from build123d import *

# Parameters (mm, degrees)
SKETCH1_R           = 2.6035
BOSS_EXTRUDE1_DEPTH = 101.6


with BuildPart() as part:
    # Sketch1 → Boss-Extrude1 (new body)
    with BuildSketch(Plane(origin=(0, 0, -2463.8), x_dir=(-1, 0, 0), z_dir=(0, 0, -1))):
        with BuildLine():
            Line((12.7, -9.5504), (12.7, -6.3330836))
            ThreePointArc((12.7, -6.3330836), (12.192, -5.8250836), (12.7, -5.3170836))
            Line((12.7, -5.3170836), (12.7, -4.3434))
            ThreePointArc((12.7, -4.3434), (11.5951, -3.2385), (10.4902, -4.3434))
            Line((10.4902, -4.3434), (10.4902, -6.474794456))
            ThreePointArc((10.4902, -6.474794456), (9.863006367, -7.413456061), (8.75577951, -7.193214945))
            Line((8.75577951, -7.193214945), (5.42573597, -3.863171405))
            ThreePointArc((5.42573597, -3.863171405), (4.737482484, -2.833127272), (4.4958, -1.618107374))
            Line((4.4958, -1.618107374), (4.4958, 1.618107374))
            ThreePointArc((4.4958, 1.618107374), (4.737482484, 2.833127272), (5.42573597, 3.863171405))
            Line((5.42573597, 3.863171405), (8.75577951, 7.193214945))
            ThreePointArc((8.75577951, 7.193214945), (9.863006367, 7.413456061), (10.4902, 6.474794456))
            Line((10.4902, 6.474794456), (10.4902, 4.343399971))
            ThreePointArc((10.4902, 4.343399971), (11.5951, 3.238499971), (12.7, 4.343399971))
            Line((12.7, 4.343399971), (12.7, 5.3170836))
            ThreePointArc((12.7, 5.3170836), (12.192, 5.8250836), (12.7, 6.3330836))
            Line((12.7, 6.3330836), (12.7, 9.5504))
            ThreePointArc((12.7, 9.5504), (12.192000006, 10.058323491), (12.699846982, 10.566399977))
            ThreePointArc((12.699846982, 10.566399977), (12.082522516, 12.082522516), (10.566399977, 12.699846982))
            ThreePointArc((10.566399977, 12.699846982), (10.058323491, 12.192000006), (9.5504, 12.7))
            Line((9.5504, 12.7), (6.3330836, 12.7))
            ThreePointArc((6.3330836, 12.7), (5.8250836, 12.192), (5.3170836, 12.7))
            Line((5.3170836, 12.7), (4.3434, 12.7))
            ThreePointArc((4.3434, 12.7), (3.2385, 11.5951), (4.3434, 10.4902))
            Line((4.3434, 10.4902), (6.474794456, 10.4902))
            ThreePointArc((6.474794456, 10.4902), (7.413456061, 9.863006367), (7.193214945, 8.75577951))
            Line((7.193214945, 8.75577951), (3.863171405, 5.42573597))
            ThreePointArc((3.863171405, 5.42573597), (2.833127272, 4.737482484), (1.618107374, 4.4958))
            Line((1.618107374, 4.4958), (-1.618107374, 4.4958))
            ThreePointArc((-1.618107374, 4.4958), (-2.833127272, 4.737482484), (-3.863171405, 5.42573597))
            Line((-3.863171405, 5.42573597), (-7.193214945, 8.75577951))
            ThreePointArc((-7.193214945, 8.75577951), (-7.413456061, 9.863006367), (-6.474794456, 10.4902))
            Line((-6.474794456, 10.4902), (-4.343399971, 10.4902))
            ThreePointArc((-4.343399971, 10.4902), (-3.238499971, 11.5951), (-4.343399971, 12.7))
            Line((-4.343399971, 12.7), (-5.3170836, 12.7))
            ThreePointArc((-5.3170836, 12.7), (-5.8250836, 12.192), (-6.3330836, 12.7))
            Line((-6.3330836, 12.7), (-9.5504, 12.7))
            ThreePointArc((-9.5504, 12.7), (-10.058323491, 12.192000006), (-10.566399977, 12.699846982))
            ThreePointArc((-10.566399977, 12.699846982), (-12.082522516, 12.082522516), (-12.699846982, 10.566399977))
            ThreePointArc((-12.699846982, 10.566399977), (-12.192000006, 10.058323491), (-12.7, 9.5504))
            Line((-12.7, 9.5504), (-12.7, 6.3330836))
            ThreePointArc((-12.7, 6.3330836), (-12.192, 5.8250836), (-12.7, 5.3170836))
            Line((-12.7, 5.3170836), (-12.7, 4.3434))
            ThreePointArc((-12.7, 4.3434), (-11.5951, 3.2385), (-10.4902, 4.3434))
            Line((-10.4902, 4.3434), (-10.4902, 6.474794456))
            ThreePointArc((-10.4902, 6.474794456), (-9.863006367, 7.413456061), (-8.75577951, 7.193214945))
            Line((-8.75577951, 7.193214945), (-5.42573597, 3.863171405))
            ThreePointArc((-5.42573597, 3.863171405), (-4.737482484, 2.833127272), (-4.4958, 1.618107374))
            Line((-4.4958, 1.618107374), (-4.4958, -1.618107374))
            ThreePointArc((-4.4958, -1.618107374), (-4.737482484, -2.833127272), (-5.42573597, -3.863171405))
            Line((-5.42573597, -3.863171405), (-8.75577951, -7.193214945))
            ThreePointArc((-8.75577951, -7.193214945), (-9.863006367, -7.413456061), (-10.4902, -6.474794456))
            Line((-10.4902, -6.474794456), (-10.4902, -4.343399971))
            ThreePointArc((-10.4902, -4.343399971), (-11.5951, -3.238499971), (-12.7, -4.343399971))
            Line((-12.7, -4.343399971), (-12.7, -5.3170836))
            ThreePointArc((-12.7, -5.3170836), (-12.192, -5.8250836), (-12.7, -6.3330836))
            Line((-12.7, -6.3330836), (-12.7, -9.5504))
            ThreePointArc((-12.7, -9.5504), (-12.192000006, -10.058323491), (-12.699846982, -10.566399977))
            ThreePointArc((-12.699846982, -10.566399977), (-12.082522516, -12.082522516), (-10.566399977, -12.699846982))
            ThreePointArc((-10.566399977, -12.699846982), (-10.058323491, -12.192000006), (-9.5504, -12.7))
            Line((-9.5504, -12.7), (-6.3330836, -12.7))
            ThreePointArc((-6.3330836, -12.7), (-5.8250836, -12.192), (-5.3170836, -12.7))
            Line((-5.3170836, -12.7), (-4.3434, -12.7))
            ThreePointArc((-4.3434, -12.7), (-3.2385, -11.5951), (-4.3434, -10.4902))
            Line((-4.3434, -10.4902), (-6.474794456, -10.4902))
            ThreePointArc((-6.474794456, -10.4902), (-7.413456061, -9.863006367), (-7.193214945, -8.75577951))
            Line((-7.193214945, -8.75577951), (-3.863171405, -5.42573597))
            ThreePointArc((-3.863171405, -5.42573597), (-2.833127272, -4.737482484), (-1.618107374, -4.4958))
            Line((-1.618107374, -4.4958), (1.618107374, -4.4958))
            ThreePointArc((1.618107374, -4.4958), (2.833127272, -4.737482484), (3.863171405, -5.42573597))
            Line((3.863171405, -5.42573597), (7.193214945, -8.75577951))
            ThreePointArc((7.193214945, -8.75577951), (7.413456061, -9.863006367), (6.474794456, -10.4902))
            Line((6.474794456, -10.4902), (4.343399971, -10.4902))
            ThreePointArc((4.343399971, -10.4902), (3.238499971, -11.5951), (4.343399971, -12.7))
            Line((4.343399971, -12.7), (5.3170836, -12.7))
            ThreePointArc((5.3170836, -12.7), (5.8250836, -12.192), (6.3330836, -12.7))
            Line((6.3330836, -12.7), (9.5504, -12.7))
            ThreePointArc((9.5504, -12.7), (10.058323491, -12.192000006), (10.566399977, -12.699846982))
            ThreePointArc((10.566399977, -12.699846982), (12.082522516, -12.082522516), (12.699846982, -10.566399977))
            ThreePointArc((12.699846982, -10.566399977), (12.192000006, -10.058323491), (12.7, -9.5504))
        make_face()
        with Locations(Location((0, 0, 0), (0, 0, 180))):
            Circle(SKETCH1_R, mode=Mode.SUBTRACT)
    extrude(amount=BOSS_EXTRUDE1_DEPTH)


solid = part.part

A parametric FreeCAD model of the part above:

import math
import FreeCAD as App
import Part
import Sketcher
Q = App.Units.Quantity

doc = App.newDocument("Part")
body = doc.addObject("PartDesign::Body", "Body")

# Sketch on XY plane
sketch1 = body.newObject("Sketcher::SketchObject", "Sketch")
sketch1.AttachmentSupport = (doc.getObject("XY_Plane"), [""])
sketch1.MapMode = "FlatFace"
sketch1.AttachmentOffset = App.Placement(App.Vector(0, 0, -97 * 25.4), App.Rotation())
sketch1.addGeometry(Part.LineSegment(App.Vector(-12.7, -9.6, 0), App.Vector(-12.7, -6.3, 0)), False)
sketch1.addGeometry(Part.ArcOfCircle(Part.Circle(App.Vector(-12.7, -5.8, 0), App.Vector(0, 0, 1), 0.5), math.radians(-90), math.radians(90)), False)
sketch1.addGeometry(Part.LineSegment(App.Vector(-12.7, -5.3, 0), App.Vector(-12.7, -4.3, 0)), False)
sketch1.addGeometry(Part.ArcOfCircle(Part.Circle(App.Vector(-11.6, -4.3, 0), App.Vector(0, 0, 1), 1.1), math.radians(0), math.radians(180)), False)
sketch1.addGeometry(Part.LineSegment(App.Vector(-10.5, -4.3, 0), App.Vector(-10.5, -6.5, 0)), False)
sketch1.addGeometry(Part.ArcOfCircle(Part.Circle(App.Vector(-9.5, -6.5, 0), App.Vector(0, 0, 1), 1), math.radians(180), math.radians(315)), False)
sketch1.addGeometry(Part.LineSegment(App.Vector(-8.8, -7.2, 0), App.Vector(-5.4, -3.9, 0)), False)
sketch1.addGeometry(Part.ArcOfCircle(Part.Circle(App.Vector(-7.7, -1.6, 0), App.Vector(0, 0, 1), 3.2), math.radians(-45), math.radians(0)), False)
sketch1.addGeometry(Part.LineSegment(App.Vector(-4.5, -1.6, 0), App.Vector(-4.5, 1.6, 0)), False)
sketch1.addGeometry(Part.ArcOfCircle(Part.Circle(App.Vector(-7.7, 1.6, 0), App.Vector(0, 0, 1), 3.2), math.radians(0), math.radians(45)), False)
sketch1.addGeometry(Part.LineSegment(App.Vector(-5.4, 3.9, 0), App.Vector(-8.8, 7.2, 0)), False)
sketch1.addGeometry(Part.ArcOfCircle(Part.Circle(App.Vector(-9.5, 6.5, 0), App.Vector(0, 0, 1), 1), math.radians(45), math.radians(180)), False)
sketch1.addGeometry(Part.LineSegment(App.Vector(-10.5, 6.5, 0), App.Vector(-10.5, 4.3, 0)), False)
sketch1.addGeometry(Part.ArcOfCircle(Part.Circle(App.Vector(-11.6, 4.3, 0), App.Vector(0, 0, 1), 1.1), math.radians(180), math.radians(360)), False)
sketch1.addGeometry(Part.LineSegment(App.Vector(-12.7, 4.3, 0), App.Vector(-12.7, 5.3, 0)), False)
sketch1.addGeometry(Part.ArcOfCircle(Part.Circle(App.Vector(-12.7, 5.8, 0), App.Vector(0, 0, 1), 0.5), math.radians(-90), math.radians(90)), False)
sketch1.addGeometry(Part.LineSegment(App.Vector(-12.7, 6.3, 0), App.Vector(-12.7, 9.6, 0)), False)
sketch1.addGeometry(Part.ArcOfCircle(Part.Circle(App.Vector(-12.7, 10.1, 0), App.Vector(0, 0, 1), 0.5), math.radians(-90), math.radians(90)), False)
sketch1.addGeometry(Part.ArcOfCircle(Part.Circle(App.Vector(-10.6, 10.6, 0), App.Vector(0, 0, 1), 2.1), math.radians(89), math.radians(181)), False)
sketch1.addGeometry(Part.ArcOfCircle(Part.Circle(App.Vector(-10.1, 12.7, 0), App.Vector(0, 0, 1), 0.5), math.radians(-180), math.radians(0)), False)
sketch1.addGeometry(Part.LineSegment(App.Vector(-9.6, 12.7, 0), App.Vector(-6.3, 12.7, 0)), False)
sketch1.addGeometry(Part.ArcOfCircle(Part.Circle(App.Vector(-5.8, 12.7, 0), App.Vector(0, 0, 1), 0.5), math.radians(180), math.radians(360)), False)
sketch1.addGeometry(Part.LineSegment(App.Vector(-5.3, 12.7, 0), App.Vector(-4.3, 12.7, 0)), False)
sketch1.addGeometry(Part.ArcOfCircle(Part.Circle(App.Vector(-4.3, 11.6, 0), App.Vector(0, 0, 1), 1.1), math.radians(-90), math.radians(90)), False)
sketch1.addGeometry(Part.LineSegment(App.Vector(-4.3, 10.5, 0), App.Vector(-6.5, 10.5, 0)), False)
sketch1.addGeometry(Part.ArcOfCircle(Part.Circle(App.Vector(-6.5, 9.5, 0), App.Vector(0, 0, 1), 1), math.radians(90), math.radians(225)), False)
sketch1.addGeometry(Part.LineSegment(App.Vector(-7.2, 8.8, 0), App.Vector(-3.9, 5.4, 0)), False)
sketch1.addGeometry(Part.ArcOfCircle(Part.Circle(App.Vector(-1.6, 7.7, 0), App.Vector(0, 0, 1), 3.2), math.radians(-135), math.radians(-90)), False)
sketch1.addGeometry(Part.LineSegment(App.Vector(-1.6, 4.5, 0), App.Vector(1.6, 4.5, 0)), False)
sketch1.addGeometry(Part.ArcOfCircle(Part.Circle(App.Vector(1.6, 7.7, 0), App.Vector(0, 0, 1), 3.2), math.radians(-90), math.radians(-45)), False)
sketch1.addGeometry(Part.LineSegment(App.Vector(3.9, 5.4, 0), App.Vector(7.2, 8.8, 0)), False)
sketch1.addGeometry(Part.ArcOfCircle(Part.Circle(App.Vector(6.5, 9.5, 0), App.Vector(0, 0, 1), 1), math.radians(-45), math.radians(90)), False)
sketch1.addGeometry(Part.LineSegment(App.Vector(6.5, 10.5, 0), App.Vector(4.3, 10.5, 0)), False)
sketch1.addGeometry(Part.ArcOfCircle(Part.Circle(App.Vector(4.3, 11.6, 0), App.Vector(0, 0, 1), 1.1), math.radians(90), math.radians(270)), False)
sketch1.addGeometry(Part.LineSegment(App.Vector(4.3, 12.7, 0), App.Vector(5.3, 12.7, 0)), False)
sketch1.addGeometry(Part.ArcOfCircle(Part.Circle(App.Vector(5.8, 12.7, 0), App.Vector(0, 0, 1), 0.5), math.radians(180), math.radians(360)), False)
sketch1.addGeometry(Part.LineSegment(App.Vector(6.3, 12.7, 0), App.Vector(9.6, 12.7, 0)), False)
sketch1.addGeometry(Part.ArcOfCircle(Part.Circle(App.Vector(10.1, 12.7, 0), App.Vector(0, 0, 1), 0.5), math.radians(180), math.radians(360)), False)
sketch1.addGeometry(Part.ArcOfCircle(Part.Circle(App.Vector(10.6, 10.6, 0), App.Vector(0, 0, 1), 2.1), math.radians(-1), math.radians(91)), False)
sketch1.addGeometry(Part.ArcOfCircle(Part.Circle(App.Vector(12.7, 10.1, 0), App.Vector(0, 0, 1), 0.5), math.radians(90), math.radians(270)), False)
sketch1.addGeometry(Part.LineSegment(App.Vector(12.7, 9.6, 0), App.Vector(12.7, 6.3, 0)), False)
sketch1.addGeometry(Part.ArcOfCircle(Part.Circle(App.Vector(12.7, 5.8, 0), App.Vector(0, 0, 1), 0.5), math.radians(90), math.radians(270)), False)
sketch1.addGeometry(Part.LineSegment(App.Vector(12.7, 5.3, 0), App.Vector(12.7, 4.3, 0)), False)
sketch1.addGeometry(Part.ArcOfCircle(Part.Circle(App.Vector(11.6, 4.3, 0), App.Vector(0, 0, 1), 1.1), math.radians(180), math.radians(360)), False)
sketch1.addGeometry(Part.LineSegment(App.Vector(10.5, 4.3, 0), App.Vector(10.5, 6.5, 0)), False)
sketch1.addGeometry(Part.ArcOfCircle(Part.Circle(App.Vector(9.5, 6.5, 0), App.Vector(0, 0, 1), 1), math.radians(0), math.radians(135)), False)
sketch1.addGeometry(Part.LineSegment(App.Vector(8.8, 7.2, 0), App.Vector(5.4, 3.9, 0)), False)
sketch1.addGeometry(Part.ArcOfCircle(Part.Circle(App.Vector(7.7, 1.6, 0), App.Vector(0, 0, 1), 3.2), math.radians(135), math.radians(180)), False)
sketch1.addGeometry(Part.LineSegment(App.Vector(4.5, 1.6, 0), App.Vector(4.5, -1.6, 0)), False)
sketch1.addGeometry(Part.ArcOfCircle(Part.Circle(App.Vector(7.7, -1.6, 0), App.Vector(0, 0, 1), 3.2), math.radians(180), math.radians(225)), False)
sketch1.addGeometry(Part.LineSegment(App.Vector(5.4, -3.9, 0), App.Vector(8.8, -7.2, 0)), False)
sketch1.addGeometry(Part.ArcOfCircle(Part.Circle(App.Vector(9.5, -6.5, 0), App.Vector(0, 0, 1), 1), math.radians(-135), math.radians(0)), False)
sketch1.addGeometry(Part.LineSegment(App.Vector(10.5, -6.5, 0), App.Vector(10.5, -4.3, 0)), False)
sketch1.addGeometry(Part.ArcOfCircle(Part.Circle(App.Vector(11.6, -4.3, 0), App.Vector(0, 0, 1), 1.1), math.radians(0), math.radians(180)), False)
sketch1.addGeometry(Part.LineSegment(App.Vector(12.7, -4.3, 0), App.Vector(12.7, -5.3, 0)), False)
sketch1.addGeometry(Part.ArcOfCircle(Part.Circle(App.Vector(12.7, -5.8, 0), App.Vector(0, 0, 1), 0.5), math.radians(90), math.radians(270)), False)
sketch1.addGeometry(Part.LineSegment(App.Vector(12.7, -6.3, 0), App.Vector(12.7, -9.6, 0)), False)
sketch1.addGeometry(Part.ArcOfCircle(Part.Circle(App.Vector(12.7, -10.1, 0), App.Vector(0, 0, 1), 0.5), math.radians(90), math.radians(270)), False)
sketch1.addGeometry(Part.ArcOfCircle(Part.Circle(App.Vector(10.6, -10.6, 0), App.Vector(0, 0, 1), 2.1), math.radians(-91), math.radians(1)), False)
sketch1.addGeometry(Part.ArcOfCircle(Part.Circle(App.Vector(10.1, -12.7, 0), App.Vector(0, 0, 1), 0.5), math.radians(0), math.radians(180)), False)
sketch1.addGeometry(Part.LineSegment(App.Vector(9.6, -12.7, 0), App.Vector(6.3, -12.7, 0)), False)
sketch1.addGeometry(Part.ArcOfCircle(Part.Circle(App.Vector(5.8, -12.7, 0), App.Vector(0, 0, 1), 0.5), math.radians(0), math.radians(180)), False)
sketch1.addGeometry(Part.LineSegment(App.Vector(5.3, -12.7, 0), App.Vector(4.3, -12.7, 0)), False)
sketch1.addGeometry(Part.ArcOfCircle(Part.Circle(App.Vector(4.3, -11.6, 0), App.Vector(0, 0, 1), 1.1), math.radians(90), math.radians(270)), False)
sketch1.addGeometry(Part.LineSegment(App.Vector(4.3, -10.5, 0), App.Vector(6.5, -10.5, 0)), False)
sketch1.addGeometry(Part.ArcOfCircle(Part.Circle(App.Vector(6.5, -9.5, 0), App.Vector(0, 0, 1), 1), math.radians(-90), math.radians(45)), False)
sketch1.addGeometry(Part.LineSegment(App.Vector(7.2, -8.8, 0), App.Vector(3.9, -5.4, 0)), False)
sketch1.addGeometry(Part.ArcOfCircle(Part.Circle(App.Vector(1.6, -7.7, 0), App.Vector(0, 0, 1), 3.2), math.radians(45), math.radians(90)), False)
sketch1.addGeometry(Part.LineSegment(App.Vector(1.6, -4.5, 0), App.Vector(-1.6, -4.5, 0)), False)
sketch1.addGeometry(Part.ArcOfCircle(Part.Circle(App.Vector(-1.6, -7.7, 0), App.Vector(0, 0, 1), 3.2), math.radians(90), math.radians(135)), False)
sketch1.addGeometry(Part.LineSegment(App.Vector(-3.9, -5.4, 0), App.Vector(-7.2, -8.8, 0)), False)
sketch1.addGeometry(Part.ArcOfCircle(Part.Circle(App.Vector(-6.5, -9.5, 0), App.Vector(0, 0, 1), 1), math.radians(135), math.radians(270)), False)
sketch1.addGeometry(Part.LineSegment(App.Vector(-6.5, -10.5, 0), App.Vector(-4.3, -10.5, 0)), False)
sketch1.addGeometry(Part.ArcOfCircle(Part.Circle(App.Vector(-4.3, -11.6, 0), App.Vector(0, 0, 1), 1.1), math.radians(-90), math.radians(90)), False)
sketch1.addGeometry(Part.LineSegment(App.Vector(-4.3, -12.7, 0), App.Vector(-5.3, -12.7, 0)), False)
sketch1.addGeometry(Part.ArcOfCircle(Part.Circle(App.Vector(-5.8, -12.7, 0), App.Vector(0, 0, 1), 0.5), math.radians(0), math.radians(180)), False)
sketch1.addGeometry(Part.LineSegment(App.Vector(-6.3, -12.7, 0), App.Vector(-9.6, -12.7, 0)), False)
sketch1.addGeometry(Part.ArcOfCircle(Part.Circle(App.Vector(-10.1, -12.7, 0), App.Vector(0, 0, 1), 0.5), math.radians(0), math.radians(180)), False)
sketch1.addGeometry(Part.ArcOfCircle(Part.Circle(App.Vector(-10.6, -10.6, 0), App.Vector(0, 0, 1), 2.1), math.radians(179), math.radians(271)), False)
sketch1.addGeometry(Part.ArcOfCircle(Part.Circle(App.Vector(-12.7, -10.1, 0), App.Vector(0, 0, 1), 0.5), math.radians(-90), math.radians(90)), False)
sketch1.addGeometry(Part.Circle(App.Vector(0, 0, 0), App.Vector(0, 0, 1), 2.6), False)
sketch1.addConstraint(Sketcher.Constraint("Coincident", 0, 2, 1, 1))
sketch1.addConstraint(Sketcher.Constraint("Coincident", 1, 2, 2, 1))
sketch1.addConstraint(Sketcher.Constraint("Tangent", 2, 2, 3, 2))
sketch1.addConstraint(Sketcher.Constraint("Tangent", 3, 1, 4, 1))
sketch1.addConstraint(Sketcher.Constraint("Tangent", 4, 2, 5, 1))
sketch1.addConstraint(Sketcher.Constraint("Tangent", 5, 2, 6, 1))
sketch1.addConstraint(Sketcher.Constraint("Tangent", 6, 2, 7, 1))
sketch1.addConstraint(Sketcher.Constraint("Tangent", 7, 2, 8, 1))
sketch1.addConstraint(Sketcher.Constraint("Tangent", 8, 2, 9, 1))
sketch1.addConstraint(Sketcher.Constraint("Tangent", 9, 2, 10, 1))
sketch1.addConstraint(Sketcher.Constraint("Tangent", 10, 2, 11, 1))
sketch1.addConstraint(Sketcher.Constraint("Tangent", 11, 2, 12, 1))
sketch1.addConstraint(Sketcher.Constraint("Tangent", 12, 2, 13, 2))
sketch1.addConstraint(Sketcher.Constraint("Tangent", 13, 1, 14, 1))
sketch1.addConstraint(Sketcher.Constraint("Coincident", 14, 2, 15, 1))
sketch1.addConstraint(Sketcher.Constraint("Coincident", 15, 2, 16, 1))
sketch1.addConstraint(Sketcher.Constraint("Coincident", 16, 2, 17, 1))
sketch1.addConstraint(Sketcher.Constraint("Coincident", 17, 2, 18, 2))
sketch1.addConstraint(Sketcher.Constraint("Coincident", 18, 1, 19, 1))
sketch1.addConstraint(Sketcher.Constraint("Coincident", 19, 2, 20, 1))
sketch1.addConstraint(Sketcher.Constraint("Coincident", 20, 2, 21, 1))
sketch1.addConstraint(Sketcher.Constraint("Coincident", 21, 2, 22, 1))
sketch1.addConstraint(Sketcher.Constraint("Tangent", 22, 2, 23, 2))
sketch1.addConstraint(Sketcher.Constraint("Tangent", 23, 1, 24, 1))
sketch1.addConstraint(Sketcher.Constraint("Tangent", 24, 2, 25, 1))
sketch1.addConstraint(Sketcher.Constraint("Tangent", 25, 2, 26, 1))
sketch1.addConstraint(Sketcher.Constraint("Tangent", 26, 2, 27, 1))
sketch1.addConstraint(Sketcher.Constraint("Tangent", 27, 2, 28, 1))
sketch1.addConstraint(Sketcher.Constraint("Tangent", 28, 2, 29, 1))
sketch1.addConstraint(Sketcher.Constraint("Tangent", 29, 2, 30, 1))
sketch1.addConstraint(Sketcher.Constraint("Tangent", 30, 2, 31, 1))
sketch1.addConstraint(Sketcher.Constraint("Tangent", 31, 2, 32, 1))
sketch1.addConstraint(Sketcher.Constraint("Tangent", 32, 2, 33, 2))
sketch1.addConstraint(Sketcher.Constraint("Tangent", 33, 1, 34, 1))
sketch1.addConstraint(Sketcher.Constraint("Coincident", 34, 2, 35, 1))
sketch1.addConstraint(Sketcher.Constraint("Coincident", 35, 2, 36, 1))
sketch1.addConstraint(Sketcher.Constraint("Coincident", 36, 2, 37, 1))
sketch1.addConstraint(Sketcher.Constraint("Coincident", 37, 2, 38, 2))
sketch1.addConstraint(Sketcher.Constraint("Coincident", 38, 1, 39, 1))
sketch1.addConstraint(Sketcher.Constraint("Coincident", 39, 2, 40, 1))
sketch1.addConstraint(Sketcher.Constraint("Coincident", 40, 2, 41, 1))
sketch1.addConstraint(Sketcher.Constraint("Coincident", 41, 2, 42, 1))
sketch1.addConstraint(Sketcher.Constraint("Tangent", 42, 2, 43, 2))
sketch1.addConstraint(Sketcher.Constraint("Tangent", 43, 1, 44, 1))
sketch1.addConstraint(Sketcher.Constraint("Tangent", 44, 2, 45, 1))
sketch1.addConstraint(Sketcher.Constraint("Tangent", 45, 2, 46, 1))
sketch1.addConstraint(Sketcher.Constraint("Tangent", 46, 2, 47, 1))
sketch1.addConstraint(Sketcher.Constraint("Tangent", 47, 2, 48, 1))
sketch1.addConstraint(Sketcher.Constraint("Tangent", 48, 2, 49, 1))
sketch1.addConstraint(Sketcher.Constraint("Tangent", 49, 2, 50, 1))
sketch1.addConstraint(Sketcher.Constraint("Tangent", 50, 2, 51, 1))
sketch1.addConstraint(Sketcher.Constraint("Tangent", 51, 2, 52, 1))
sketch1.addConstraint(Sketcher.Constraint("Tangent", 52, 2, 53, 2))
sketch1.addConstraint(Sketcher.Constraint("Tangent", 53, 1, 54, 1))
sketch1.addConstraint(Sketcher.Constraint("Coincident", 54, 2, 55, 1))
sketch1.addConstraint(Sketcher.Constraint("Coincident", 55, 2, 56, 1))
sketch1.addConstraint(Sketcher.Constraint("Coincident", 56, 2, 57, 1))
sketch1.addConstraint(Sketcher.Constraint("Coincident", 57, 2, 58, 2))
sketch1.addConstraint(Sketcher.Constraint("Coincident", 58, 1, 59, 1))
sketch1.addConstraint(Sketcher.Constraint("Coincident", 59, 2, 60, 1))
sketch1.addConstraint(Sketcher.Constraint("Coincident", 60, 2, 61, 1))
sketch1.addConstraint(Sketcher.Constraint("Coincident", 61, 2, 62, 1))
sketch1.addConstraint(Sketcher.Constraint("Tangent", 62, 2, 63, 2))
sketch1.addConstraint(Sketcher.Constraint("Tangent", 63, 1, 64, 1))
sketch1.addConstraint(Sketcher.Constraint("Tangent", 64, 2, 65, 1))
sketch1.addConstraint(Sketcher.Constraint("Tangent", 65, 2, 66, 1))
sketch1.addConstraint(Sketcher.Constraint("Tangent", 66, 2, 67, 1))
sketch1.addConstraint(Sketcher.Constraint("Tangent", 67, 2, 68, 1))
sketch1.addConstraint(Sketcher.Constraint("Tangent", 68, 2, 69, 1))
sketch1.addConstraint(Sketcher.Constraint("Tangent", 69, 2, 70, 1))
sketch1.addConstraint(Sketcher.Constraint("Tangent", 70, 2, 71, 1))
sketch1.addConstraint(Sketcher.Constraint("Tangent", 71, 2, 72, 1))
sketch1.addConstraint(Sketcher.Constraint("Tangent", 72, 2, 73, 2))
sketch1.addConstraint(Sketcher.Constraint("Tangent", 73, 1, 74, 1))
sketch1.addConstraint(Sketcher.Constraint("Coincident", 74, 2, 75, 1))
sketch1.addConstraint(Sketcher.Constraint("Coincident", 75, 2, 76, 1))
sketch1.addConstraint(Sketcher.Constraint("Coincident", 76, 2, 77, 1))
sketch1.addConstraint(Sketcher.Constraint("Coincident", 77, 2, 78, 2))
sketch1.addConstraint(Sketcher.Constraint("Coincident", 78, 1, 79, 1))
sketch1.addConstraint(Sketcher.Constraint("Coincident", 79, 2, 0, 1))
sketch1.addConstraint(Sketcher.Constraint("Vertical", 0))
sketch1.addConstraint(Sketcher.Constraint("Vertical", 2))
sketch1.addConstraint(Sketcher.Constraint("Vertical", 4))
sketch1.addConstraint(Sketcher.Constraint("Vertical", 8))
sketch1.addConstraint(Sketcher.Constraint("Vertical", 12))
sketch1.addConstraint(Sketcher.Constraint("Vertical", 14))
sketch1.addConstraint(Sketcher.Constraint("Vertical", 16))
sketch1.addConstraint(Sketcher.Constraint("Horizontal", 20))
sketch1.addConstraint(Sketcher.Constraint("Horizontal", 22))
sketch1.addConstraint(Sketcher.Constraint("Horizontal", 24))
sketch1.addConstraint(Sketcher.Constraint("Horizontal", 28))
sketch1.addConstraint(Sketcher.Constraint("Horizontal", 32))
sketch1.addConstraint(Sketcher.Constraint("Horizontal", 34))
sketch1.addConstraint(Sketcher.Constraint("Horizontal", 36))
sketch1.addConstraint(Sketcher.Constraint("Vertical", 40))
sketch1.addConstraint(Sketcher.Constraint("Vertical", 42))
sketch1.addConstraint(Sketcher.Constraint("Vertical", 44))
sketch1.addConstraint(Sketcher.Constraint("Vertical", 48))
sketch1.addConstraint(Sketcher.Constraint("Vertical", 52))
sketch1.addConstraint(Sketcher.Constraint("Vertical", 54))
sketch1.addConstraint(Sketcher.Constraint("Vertical", 56))
sketch1.addConstraint(Sketcher.Constraint("Horizontal", 60))
sketch1.addConstraint(Sketcher.Constraint("Horizontal", 62))
sketch1.addConstraint(Sketcher.Constraint("Horizontal", 64))
sketch1.addConstraint(Sketcher.Constraint("Horizontal", 68))
sketch1.addConstraint(Sketcher.Constraint("Horizontal", 72))
sketch1.addConstraint(Sketcher.Constraint("Horizontal", 74))
sketch1.addConstraint(Sketcher.Constraint("Horizontal", 76))
sketch1.addConstraint(Sketcher.Constraint("Coincident", 80, 3, -1, 1))
sketch1.addConstraint(Sketcher.Constraint("Equal", 7, 9))
sketch1.addConstraint(Sketcher.Constraint("Equal", 5, 11))
sketch1.addConstraint(Sketcher.Constraint("Equal", 3, 13))
sketch1.addConstraint(Sketcher.Constraint("Equal", 1, 15))
sketch1.addConstraint(Sketcher.Constraint("Equal", 15, 17))
sketch1.addConstraint(Sketcher.Constraint("Equal", 17, 19))
sketch1.addConstraint(Sketcher.Constraint("Equal", 19, 21))
sketch1.addConstraint(Sketcher.Constraint("Equal", 13, 23))
sketch1.addConstraint(Sketcher.Constraint("Equal", 11, 25))
sketch1.addConstraint(Sketcher.Constraint("Equal", 9, 27))
sketch1.addConstraint(Sketcher.Constraint("Equal", 27, 29))
sketch1.addConstraint(Sketcher.Constraint("Equal", 25, 31))
sketch1.addConstraint(Sketcher.Constraint("Equal", 23, 33))
sketch1.addConstraint(Sketcher.Constraint("Equal", 21, 35))
sketch1.addConstraint(Sketcher.Constraint("Equal", 35, 37))
sketch1.addConstraint(Sketcher.Constraint("Equal", 18, 38))
sketch1.addConstraint(Sketcher.Constraint("Equal", 37, 39))
sketch1.addConstraint(Sketcher.Constraint("Equal", 39, 41))
sketch1.addConstraint(Sketcher.Constraint("Equal", 33, 43))
sketch1.addConstraint(Sketcher.Constraint("Equal", 31, 45))
sketch1.addConstraint(Sketcher.Constraint("Equal", 29, 47))
sketch1.addConstraint(Sketcher.Constraint("Equal", 47, 49))
sketch1.addConstraint(Sketcher.Constraint("Equal", 45, 51))
sketch1.addConstraint(Sketcher.Constraint("Equal", 43, 53))
sketch1.addConstraint(Sketcher.Constraint("Equal", 41, 55))
sketch1.addConstraint(Sketcher.Constraint("Equal", 55, 57))
sketch1.addConstraint(Sketcher.Constraint("Equal", 38, 58))
sketch1.addConstraint(Sketcher.Constraint("Equal", 57, 59))
sketch1.addConstraint(Sketcher.Constraint("Equal", 59, 61))
sketch1.addConstraint(Sketcher.Constraint("Equal", 53, 63))
sketch1.addConstraint(Sketcher.Constraint("Equal", 51, 65))
sketch1.addConstraint(Sketcher.Constraint("Equal", 49, 67))
sketch1.addConstraint(Sketcher.Constraint("Equal", 67, 69))
sketch1.addConstraint(Sketcher.Constraint("Equal", 65, 71))
sketch1.addConstraint(Sketcher.Constraint("Equal", 63, 73))
sketch1.addConstraint(Sketcher.Constraint("Equal", 61, 75))
sketch1.addConstraint(Sketcher.Constraint("Equal", 75, 77))
sketch1.addConstraint(Sketcher.Constraint("Equal", 58, 78))
sketch1.addConstraint(Sketcher.Constraint("Equal", 77, 79))
sketch1.addConstraint(Sketcher.Constraint("Symmetric", 1, 3, 41, 3, -1, 1))
sketch1.addConstraint(Sketcher.Constraint("Symmetric", 3, 3, 43, 3, -1, 1))
sketch1.addConstraint(Sketcher.Constraint("Symmetric", 7, 3, 47, 3, -1, 1))
sketch1.addConstraint(Sketcher.Constraint("Symmetric", 11, 3, 51, 3, -1, 1))
sketch1.addConstraint(Sketcher.Constraint("Symmetric", 15, 3, 55, 3, -1, 1))
sketch1.addConstraint(Sketcher.Constraint("Symmetric", 17, 3, 57, 3, -1, 1))
sketch1.addConstraint(Sketcher.Constraint("Symmetric", 18, 3, 58, 3, -1, 1))
sketch1.addConstraint(Sketcher.Constraint("Symmetric", 19, 3, 59, 3, -1, 1))
sketch1.addConstraint(Sketcher.Constraint("Symmetric", 21, 3, 61, 3, -1, 1))
sketch1.addConstraint(Sketcher.Constraint("Symmetric", 23, 3, 63, 3, -1, 1))
sketch1.addConstraint(Sketcher.Constraint("Symmetric", 27, 3, 67, 3, -1, 1))
sketch1.addConstraint(Sketcher.Constraint("Symmetric", 31, 3, 71, 3, -1, 1))
sketch1.addConstraint(Sketcher.Constraint("Symmetric", 35, 3, 75, 3, -1, 1))
sketch1.addConstraint(Sketcher.Constraint("Symmetric", 37, 3, 77, 3, -1, 1))
sketch1.addConstraint(Sketcher.Constraint("Symmetric", 38, 3, 78, 3, -1, 1))
sketch1.addConstraint(Sketcher.Constraint("Symmetric", 39, 3, 79, 3, -1, 1))
sketch1.addConstraint(Sketcher.Constraint("Symmetric", 25, 3, 31, 3, -2))
sketch1.addConstraint(Sketcher.Constraint("Symmetric", 21, 3, 35, 3, -2))
sketch1.addConstraint(Sketcher.Constraint("Symmetric", 19, 3, 37, 3, -2))
sketch1.addConstraint(Sketcher.Constraint("Symmetric", 18, 3, 38, 3, -2))
sketch1.addConstraint(Sketcher.Constraint("Symmetric", 17, 3, 39, 3, -2))
sketch1.addConstraint(Sketcher.Constraint("Symmetric", 15, 3, 41, 3, -2))
sketch1.addConstraint(Sketcher.Constraint("Symmetric", 13, 3, 43, 3, -2))
sketch1.addConstraint(Sketcher.Constraint("Symmetric", 10, 2, 45, 2, -2))
sketch1.addConstraint(Sketcher.Constraint("Symmetric", 6, 2, 49, 2, -2))
sketch1.addConstraint(Sketcher.Constraint("Symmetric", 66, 2, 69, 2, -2))
sketch1.addConstraint(Sketcher.Constraint("Perpendicular", 6, 10))
sketch1.addConstraint(Sketcher.Constraint("Parallel", 10, 26))
sketch1.addConstraint(Sketcher.Constraint("Perpendicular", 26, 30))
sketch1.addConstraint(Sketcher.Constraint("Horizontal", 19, 3, 21, 3))
sketch1.addConstraint(Sketcher.Constraint("Horizontal", 3, 3, 53, 3))
sketch1.addConstraint(Sketcher.Constraint("Horizontal", 37, 3, 19, 2))
sketch1.addConstraint(Sketcher.Constraint("Horizontal", 20, 2, 21, 2))
sketch1.addConstraint(Sketcher.Constraint("Horizontal", 34, 2, 35, 2))
sketch1.addConstraint(Sketcher.Constraint("Horizontal", 77, 3, 59, 2))
sketch1.addConstraint(Sketcher.Constraint("Horizontal", 74, 2, 75, 2))
sketch1.addConstraint(Sketcher.Constraint("Vertical", 15, 3, 17, 3))
sketch1.addConstraint(Sketcher.Constraint("Vertical", 33, 3, 63, 3))
sketch1.addConstraint(Sketcher.Constraint("Vertical", 23, 3, 73, 3))
sketch1.addConstraint(Sketcher.Constraint("Vertical", 79, 3, 0, 2))
sketch1.addConstraint(Sketcher.Constraint("Vertical", 0, 2, 1, 2))
sketch1.addConstraint(Sketcher.Constraint("Vertical", 14, 2, 15, 2))
sketch1.addConstraint(Sketcher.Constraint("Vertical", 57, 3, 39, 2))
sketch1.addConstraint(Sketcher.Constraint("Vertical", 54, 2, 55, 2))
sketch1.addConstraint(Sketcher.Constraint("Equal", 76, 0))
sketch1.addConstraint(Sketcher.Constraint("Equal", 74, 2))
sketch1.addConstraint(Sketcher.Constraint("Equal", 72, 4))
sketch1.addConstraint(Sketcher.Constraint("Equal", 68, 8))
sketch1.addConstraint(Sketcher.Constraint("Equal", 10, 26))
sketch1.addConstraint(Sketcher.Constraint("Radius", 1, Q("0.02 in")))
sketch1.addConstraint(Sketcher.Constraint("Radius", 5, Q("0.04 in")))
sketch1.addConstraint(Sketcher.Constraint("Diameter", 80, Q("0.205 in")))
sketch1.addConstraint(Sketcher.Constraint("Radius", 7, Q("0.125 in")))
sketch1.addConstraint(Sketcher.Constraint("Radius", 18, Q("0.083 in")))
sketch1.addConstraint(Sketcher.Constraint("DistanceX", 1, 3, -1, 1, Q("0.5 in")))
sketch1.addConstraint(Sketcher.Constraint("DistanceY", -1, 1, 19, 3, Q("0.5 in")))
sketch1.addConstraint(Sketcher.Constraint("Radius", 3, Q("0.0435 in")))
sketch1.addConstraint(Sketcher.Constraint("DistanceY", 3, 3, -1, 1, Q("0.171 in")))
sketch1.addConstraint(Sketcher.Constraint("DistanceX", 7, 3, -1, 1, Q("0.302 in")))
sketch1.addConstraint(Sketcher.Constraint("DistanceY", -1, 1, 17, 3, Q("0.396 in")))
sketch1.addConstraint(Sketcher.Constraint("DistanceX", 18, 3, -1, 1, Q("0.417 in")))
sketch1.addConstraint(Sketcher.Constraint("DistanceY", -1, 1, 18, 3, Q("0.417 in")))
sketch1.addConstraint(Sketcher.Constraint("DistanceX", 20, 1, 20, 2, Q("3.217316 mm")))
sketch1.addConstraint(Sketcher.Constraint("DistanceX", 24, 2, 24, 1, Q("2.131394 mm")))
pad1 = body.newObject("PartDesign::Pad", "Pad")
pad1.Profile = sketch1
pad1.Length = Q("4 in")
pad1.Reversed = True

doc.recompute()
